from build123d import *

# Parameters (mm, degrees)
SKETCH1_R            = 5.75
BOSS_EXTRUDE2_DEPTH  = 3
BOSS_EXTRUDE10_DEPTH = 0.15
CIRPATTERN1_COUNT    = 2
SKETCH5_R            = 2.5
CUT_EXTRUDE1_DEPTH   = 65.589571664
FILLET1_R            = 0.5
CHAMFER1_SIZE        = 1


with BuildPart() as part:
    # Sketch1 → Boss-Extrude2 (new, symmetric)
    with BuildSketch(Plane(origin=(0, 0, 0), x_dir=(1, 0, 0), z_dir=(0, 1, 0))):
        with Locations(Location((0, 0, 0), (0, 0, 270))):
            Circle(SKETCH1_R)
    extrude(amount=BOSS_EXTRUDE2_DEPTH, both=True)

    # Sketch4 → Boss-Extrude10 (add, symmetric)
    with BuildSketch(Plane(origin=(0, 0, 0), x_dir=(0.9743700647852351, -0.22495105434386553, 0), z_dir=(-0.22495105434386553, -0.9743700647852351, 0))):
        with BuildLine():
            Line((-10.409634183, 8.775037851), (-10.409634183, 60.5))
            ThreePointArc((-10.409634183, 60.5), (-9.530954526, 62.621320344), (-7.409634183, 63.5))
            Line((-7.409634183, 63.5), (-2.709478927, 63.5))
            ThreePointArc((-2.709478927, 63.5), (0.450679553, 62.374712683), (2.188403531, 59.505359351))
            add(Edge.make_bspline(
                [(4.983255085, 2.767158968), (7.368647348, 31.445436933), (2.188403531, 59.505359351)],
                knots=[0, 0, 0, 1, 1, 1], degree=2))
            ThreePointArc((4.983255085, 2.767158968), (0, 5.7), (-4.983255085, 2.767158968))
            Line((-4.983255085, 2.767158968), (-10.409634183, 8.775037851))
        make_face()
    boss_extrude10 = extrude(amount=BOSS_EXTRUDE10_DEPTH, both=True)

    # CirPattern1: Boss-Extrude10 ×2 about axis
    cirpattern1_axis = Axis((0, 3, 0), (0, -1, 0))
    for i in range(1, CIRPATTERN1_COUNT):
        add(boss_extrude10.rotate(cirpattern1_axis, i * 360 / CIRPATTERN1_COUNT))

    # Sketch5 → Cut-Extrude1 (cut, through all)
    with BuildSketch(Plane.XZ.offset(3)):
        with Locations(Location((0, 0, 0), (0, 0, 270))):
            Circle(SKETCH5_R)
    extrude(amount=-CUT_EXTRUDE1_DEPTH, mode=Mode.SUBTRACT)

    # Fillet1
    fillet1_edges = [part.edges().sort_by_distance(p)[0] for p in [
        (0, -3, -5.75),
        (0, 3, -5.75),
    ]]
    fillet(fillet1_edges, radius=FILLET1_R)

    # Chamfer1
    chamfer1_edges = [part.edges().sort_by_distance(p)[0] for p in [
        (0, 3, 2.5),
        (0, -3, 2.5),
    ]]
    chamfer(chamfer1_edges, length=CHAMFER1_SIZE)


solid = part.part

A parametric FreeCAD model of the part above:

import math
import FreeCAD as App
import Part
import Sketcher
from FreeCAD import Vector


def edges_at(feature, points):
    """Names of the edges that pass closest to the given points."""
    edges = feature.Shape.Edges
    near = lambda p: min(range(len(edges)), key=lambda i: edges[i].distToShape(Part.Vertex(*p))[0])
    return sorted({f"Edge{near(p) + 1}" for p in points})

doc = App.newDocument("Part")
body = doc.addObject("PartDesign::Body", "Body")

# Sketch on XZ plane
sketch1 = body.newObject("Sketcher::SketchObject", "Sketch")
sketch1.AttachmentSupport = (doc.getObject("XZ_Plane"), [""])
sketch1.MapMode = "FlatFace"
sketch1.addGeometry(Part.Circle(Vector(0, 0, 0), Vector(0, 0, 1), 5.75), False)
sketch1.addConstraint(Sketcher.Constraint("Coincident", 0, 3, -1, 1))
sketch1.addConstraint(Sketcher.Constraint("Diameter", 0, 11.5))
pad1 = body.newObject("PartDesign::Pad", "Pad")
pad1.Profile = sketch1
pad1.Length = 6
pad1.Midplane = True

# Sketch on an angled plane
sketch2 = body.newObject("Sketcher::SketchObject", "Sketch001")
sketch2.Placement = App.Placement(Vector(0, 0, 0), App.Rotation(Vector(0.974370065, -0.224951054, 0), Vector(0, 0, 1), Vector(-0.224951054, -0.974370065, 0), "ZXY"))
sketch2.addGeometry(Part.LineSegment(Vector(-10.409634, 60.5, 0), Vector(-10.409634, 8.775038, 0)), False)
sketch2.addGeometry(Part.LineSegment(Vector(-10.409634, 8.775038, 0), Vector(-4.983255, 2.767159, 0)), False)
sketch2.addGeometry(Part.ArcOfCircle(Part.Circle(Vector(0, 0, 0), Vector(0, 0, 1), 5.7), math.radians(29.04304), math.radians(150.95696)), False)
sketch2.addGeometry(Part.BSplineCurve([Vector(4.983255, 2.767159, 0), Vector(7.368647, 31.445437, 0), Vector(2.188404, 59.505359, 0)], [3, 3], [0, 1], False, 2, [1, 1, 1], False), False)
sketch2.addGeometry(Part.ArcOfCircle(Part.Circle(Vector(-2.709479, 58.5, 0), Vector(0, 0, 1), 5), math.radians(11.599646), math.radians(90)), False)
sketch2.addGeometry(Part.LineSegment(Vector(-2.709479, 63.5, 0), Vector(-7.409634, 63.5, 0)), False)
sketch2.addGeometry(Part.ArcOfCircle(Part.Circle(Vector(-7.409634, 60.5, 0), Vector(0, 0, 1), 3), math.radians(90), math.radians(180)), False)
sketch2.addConstraint(Sketcher.Constraint("Block", 3))
sketch2.addConstraint(Sketcher.Constraint("Coincident", 0, 2, 1, 1))
sketch2.addConstraint(Sketcher.Constraint("Coincident", 1, 2, 2, 2))
sketch2.addConstraint(Sketcher.Constraint("Coincident", 2, 1, 3, 1))
sketch2.addConstraint(Sketcher.Constraint("Coincident", 3, 2, 4, 1))
sketch2.addConstraint(Sketcher.Constraint("Tangent", 4, 2, 5, 1))
sketch2.addConstraint(Sketcher.Constraint("Tangent", 5, 2, 6, 1))
sketch2.addConstraint(Sketcher.Constraint("Tangent", 6, 2, 0, 1))
sketch2.addConstraint(Sketcher.Constraint("Vertical", 0))
sketch2.addConstraint(Sketcher.Constraint("Horizontal", 5))
sketch2.addConstraint(Sketcher.Constraint("Coincident", 2, 3, -1, 1))
sketch2.addConstraint(Sketcher.Constraint("Horizontal", 1, 2, 2, 1))
sketch2.addConstraint(Sketcher.Constraint("Radius", 4, 5.0))
sketch2.addConstraint(Sketcher.Constraint("Radius", 6, 3.0))
sketch2.addConstraint(Sketcher.Constraint("DistanceY", -1, 1, 4, 3, 58.5))
sketch2.addConstraint(Sketcher.Constraint("Distance", 1, 8.09569))
sketch2.addConstraint(Sketcher.Constraint("DistanceX", 5, 2, 5, 1, 4.700155))
pad2 = body.newObject("PartDesign::Pad", "Pad001")
pad2.Profile = sketch2
pad2.Length = 0.3
pad2.Midplane = True
doc.recompute()

polarpattern = body.newObject("PartDesign::PolarPattern", "PolarPattern")
polarpattern.Originals = [pad2]
polarpattern.Axis = (doc.getObject("Y_Axis"), [""])
polarpattern.Angle = 360
polarpattern.Occurrences = 2
body.Tip = polarpattern

# Sketch on XZ plane
sketch3 = body.newObject("Sketcher::SketchObject", "Sketch002")
sketch3.AttachmentSupport = (doc.getObject("XZ_Plane"), [""])
sketch3.MapMode = "FlatFace"
sketch3.AttachmentOffset = App.Placement(Vector(0, 0, 3), App.Rotation())
sketch3.addGeometry(Part.Circle(Vector(0, 0, 0), Vector(0, 0, 1), 2.5), False)
sketch3.addConstraint(Sketcher.Constraint("Coincident", 0, 3, -1, 1))
sketch3.addConstraint(Sketcher.Constraint("Diameter", 0, 5.0))
pocket1 = body.newObject("PartDesign::Pocket", "Pocket")
pocket1.Profile = sketch3
pocket1.Type = "ThroughAll"
doc.recompute()

fillet = body.newObject("PartDesign::Fillet", "Fillet")
fillet.Base = (pocket1, edges_at(pocket1, [(0, -3, -5.75), (0, 3, -5.75)]))
fillet.Radius = 0.5
doc.recompute()

chamfer = body.newObject("PartDesign::Chamfer", "Chamfer")
chamfer.Base = (fillet, edges_at(fillet, [(0, 3, 2.5), (0, -3, 2.5)]))
chamfer.Size = 1

doc.recompute()
